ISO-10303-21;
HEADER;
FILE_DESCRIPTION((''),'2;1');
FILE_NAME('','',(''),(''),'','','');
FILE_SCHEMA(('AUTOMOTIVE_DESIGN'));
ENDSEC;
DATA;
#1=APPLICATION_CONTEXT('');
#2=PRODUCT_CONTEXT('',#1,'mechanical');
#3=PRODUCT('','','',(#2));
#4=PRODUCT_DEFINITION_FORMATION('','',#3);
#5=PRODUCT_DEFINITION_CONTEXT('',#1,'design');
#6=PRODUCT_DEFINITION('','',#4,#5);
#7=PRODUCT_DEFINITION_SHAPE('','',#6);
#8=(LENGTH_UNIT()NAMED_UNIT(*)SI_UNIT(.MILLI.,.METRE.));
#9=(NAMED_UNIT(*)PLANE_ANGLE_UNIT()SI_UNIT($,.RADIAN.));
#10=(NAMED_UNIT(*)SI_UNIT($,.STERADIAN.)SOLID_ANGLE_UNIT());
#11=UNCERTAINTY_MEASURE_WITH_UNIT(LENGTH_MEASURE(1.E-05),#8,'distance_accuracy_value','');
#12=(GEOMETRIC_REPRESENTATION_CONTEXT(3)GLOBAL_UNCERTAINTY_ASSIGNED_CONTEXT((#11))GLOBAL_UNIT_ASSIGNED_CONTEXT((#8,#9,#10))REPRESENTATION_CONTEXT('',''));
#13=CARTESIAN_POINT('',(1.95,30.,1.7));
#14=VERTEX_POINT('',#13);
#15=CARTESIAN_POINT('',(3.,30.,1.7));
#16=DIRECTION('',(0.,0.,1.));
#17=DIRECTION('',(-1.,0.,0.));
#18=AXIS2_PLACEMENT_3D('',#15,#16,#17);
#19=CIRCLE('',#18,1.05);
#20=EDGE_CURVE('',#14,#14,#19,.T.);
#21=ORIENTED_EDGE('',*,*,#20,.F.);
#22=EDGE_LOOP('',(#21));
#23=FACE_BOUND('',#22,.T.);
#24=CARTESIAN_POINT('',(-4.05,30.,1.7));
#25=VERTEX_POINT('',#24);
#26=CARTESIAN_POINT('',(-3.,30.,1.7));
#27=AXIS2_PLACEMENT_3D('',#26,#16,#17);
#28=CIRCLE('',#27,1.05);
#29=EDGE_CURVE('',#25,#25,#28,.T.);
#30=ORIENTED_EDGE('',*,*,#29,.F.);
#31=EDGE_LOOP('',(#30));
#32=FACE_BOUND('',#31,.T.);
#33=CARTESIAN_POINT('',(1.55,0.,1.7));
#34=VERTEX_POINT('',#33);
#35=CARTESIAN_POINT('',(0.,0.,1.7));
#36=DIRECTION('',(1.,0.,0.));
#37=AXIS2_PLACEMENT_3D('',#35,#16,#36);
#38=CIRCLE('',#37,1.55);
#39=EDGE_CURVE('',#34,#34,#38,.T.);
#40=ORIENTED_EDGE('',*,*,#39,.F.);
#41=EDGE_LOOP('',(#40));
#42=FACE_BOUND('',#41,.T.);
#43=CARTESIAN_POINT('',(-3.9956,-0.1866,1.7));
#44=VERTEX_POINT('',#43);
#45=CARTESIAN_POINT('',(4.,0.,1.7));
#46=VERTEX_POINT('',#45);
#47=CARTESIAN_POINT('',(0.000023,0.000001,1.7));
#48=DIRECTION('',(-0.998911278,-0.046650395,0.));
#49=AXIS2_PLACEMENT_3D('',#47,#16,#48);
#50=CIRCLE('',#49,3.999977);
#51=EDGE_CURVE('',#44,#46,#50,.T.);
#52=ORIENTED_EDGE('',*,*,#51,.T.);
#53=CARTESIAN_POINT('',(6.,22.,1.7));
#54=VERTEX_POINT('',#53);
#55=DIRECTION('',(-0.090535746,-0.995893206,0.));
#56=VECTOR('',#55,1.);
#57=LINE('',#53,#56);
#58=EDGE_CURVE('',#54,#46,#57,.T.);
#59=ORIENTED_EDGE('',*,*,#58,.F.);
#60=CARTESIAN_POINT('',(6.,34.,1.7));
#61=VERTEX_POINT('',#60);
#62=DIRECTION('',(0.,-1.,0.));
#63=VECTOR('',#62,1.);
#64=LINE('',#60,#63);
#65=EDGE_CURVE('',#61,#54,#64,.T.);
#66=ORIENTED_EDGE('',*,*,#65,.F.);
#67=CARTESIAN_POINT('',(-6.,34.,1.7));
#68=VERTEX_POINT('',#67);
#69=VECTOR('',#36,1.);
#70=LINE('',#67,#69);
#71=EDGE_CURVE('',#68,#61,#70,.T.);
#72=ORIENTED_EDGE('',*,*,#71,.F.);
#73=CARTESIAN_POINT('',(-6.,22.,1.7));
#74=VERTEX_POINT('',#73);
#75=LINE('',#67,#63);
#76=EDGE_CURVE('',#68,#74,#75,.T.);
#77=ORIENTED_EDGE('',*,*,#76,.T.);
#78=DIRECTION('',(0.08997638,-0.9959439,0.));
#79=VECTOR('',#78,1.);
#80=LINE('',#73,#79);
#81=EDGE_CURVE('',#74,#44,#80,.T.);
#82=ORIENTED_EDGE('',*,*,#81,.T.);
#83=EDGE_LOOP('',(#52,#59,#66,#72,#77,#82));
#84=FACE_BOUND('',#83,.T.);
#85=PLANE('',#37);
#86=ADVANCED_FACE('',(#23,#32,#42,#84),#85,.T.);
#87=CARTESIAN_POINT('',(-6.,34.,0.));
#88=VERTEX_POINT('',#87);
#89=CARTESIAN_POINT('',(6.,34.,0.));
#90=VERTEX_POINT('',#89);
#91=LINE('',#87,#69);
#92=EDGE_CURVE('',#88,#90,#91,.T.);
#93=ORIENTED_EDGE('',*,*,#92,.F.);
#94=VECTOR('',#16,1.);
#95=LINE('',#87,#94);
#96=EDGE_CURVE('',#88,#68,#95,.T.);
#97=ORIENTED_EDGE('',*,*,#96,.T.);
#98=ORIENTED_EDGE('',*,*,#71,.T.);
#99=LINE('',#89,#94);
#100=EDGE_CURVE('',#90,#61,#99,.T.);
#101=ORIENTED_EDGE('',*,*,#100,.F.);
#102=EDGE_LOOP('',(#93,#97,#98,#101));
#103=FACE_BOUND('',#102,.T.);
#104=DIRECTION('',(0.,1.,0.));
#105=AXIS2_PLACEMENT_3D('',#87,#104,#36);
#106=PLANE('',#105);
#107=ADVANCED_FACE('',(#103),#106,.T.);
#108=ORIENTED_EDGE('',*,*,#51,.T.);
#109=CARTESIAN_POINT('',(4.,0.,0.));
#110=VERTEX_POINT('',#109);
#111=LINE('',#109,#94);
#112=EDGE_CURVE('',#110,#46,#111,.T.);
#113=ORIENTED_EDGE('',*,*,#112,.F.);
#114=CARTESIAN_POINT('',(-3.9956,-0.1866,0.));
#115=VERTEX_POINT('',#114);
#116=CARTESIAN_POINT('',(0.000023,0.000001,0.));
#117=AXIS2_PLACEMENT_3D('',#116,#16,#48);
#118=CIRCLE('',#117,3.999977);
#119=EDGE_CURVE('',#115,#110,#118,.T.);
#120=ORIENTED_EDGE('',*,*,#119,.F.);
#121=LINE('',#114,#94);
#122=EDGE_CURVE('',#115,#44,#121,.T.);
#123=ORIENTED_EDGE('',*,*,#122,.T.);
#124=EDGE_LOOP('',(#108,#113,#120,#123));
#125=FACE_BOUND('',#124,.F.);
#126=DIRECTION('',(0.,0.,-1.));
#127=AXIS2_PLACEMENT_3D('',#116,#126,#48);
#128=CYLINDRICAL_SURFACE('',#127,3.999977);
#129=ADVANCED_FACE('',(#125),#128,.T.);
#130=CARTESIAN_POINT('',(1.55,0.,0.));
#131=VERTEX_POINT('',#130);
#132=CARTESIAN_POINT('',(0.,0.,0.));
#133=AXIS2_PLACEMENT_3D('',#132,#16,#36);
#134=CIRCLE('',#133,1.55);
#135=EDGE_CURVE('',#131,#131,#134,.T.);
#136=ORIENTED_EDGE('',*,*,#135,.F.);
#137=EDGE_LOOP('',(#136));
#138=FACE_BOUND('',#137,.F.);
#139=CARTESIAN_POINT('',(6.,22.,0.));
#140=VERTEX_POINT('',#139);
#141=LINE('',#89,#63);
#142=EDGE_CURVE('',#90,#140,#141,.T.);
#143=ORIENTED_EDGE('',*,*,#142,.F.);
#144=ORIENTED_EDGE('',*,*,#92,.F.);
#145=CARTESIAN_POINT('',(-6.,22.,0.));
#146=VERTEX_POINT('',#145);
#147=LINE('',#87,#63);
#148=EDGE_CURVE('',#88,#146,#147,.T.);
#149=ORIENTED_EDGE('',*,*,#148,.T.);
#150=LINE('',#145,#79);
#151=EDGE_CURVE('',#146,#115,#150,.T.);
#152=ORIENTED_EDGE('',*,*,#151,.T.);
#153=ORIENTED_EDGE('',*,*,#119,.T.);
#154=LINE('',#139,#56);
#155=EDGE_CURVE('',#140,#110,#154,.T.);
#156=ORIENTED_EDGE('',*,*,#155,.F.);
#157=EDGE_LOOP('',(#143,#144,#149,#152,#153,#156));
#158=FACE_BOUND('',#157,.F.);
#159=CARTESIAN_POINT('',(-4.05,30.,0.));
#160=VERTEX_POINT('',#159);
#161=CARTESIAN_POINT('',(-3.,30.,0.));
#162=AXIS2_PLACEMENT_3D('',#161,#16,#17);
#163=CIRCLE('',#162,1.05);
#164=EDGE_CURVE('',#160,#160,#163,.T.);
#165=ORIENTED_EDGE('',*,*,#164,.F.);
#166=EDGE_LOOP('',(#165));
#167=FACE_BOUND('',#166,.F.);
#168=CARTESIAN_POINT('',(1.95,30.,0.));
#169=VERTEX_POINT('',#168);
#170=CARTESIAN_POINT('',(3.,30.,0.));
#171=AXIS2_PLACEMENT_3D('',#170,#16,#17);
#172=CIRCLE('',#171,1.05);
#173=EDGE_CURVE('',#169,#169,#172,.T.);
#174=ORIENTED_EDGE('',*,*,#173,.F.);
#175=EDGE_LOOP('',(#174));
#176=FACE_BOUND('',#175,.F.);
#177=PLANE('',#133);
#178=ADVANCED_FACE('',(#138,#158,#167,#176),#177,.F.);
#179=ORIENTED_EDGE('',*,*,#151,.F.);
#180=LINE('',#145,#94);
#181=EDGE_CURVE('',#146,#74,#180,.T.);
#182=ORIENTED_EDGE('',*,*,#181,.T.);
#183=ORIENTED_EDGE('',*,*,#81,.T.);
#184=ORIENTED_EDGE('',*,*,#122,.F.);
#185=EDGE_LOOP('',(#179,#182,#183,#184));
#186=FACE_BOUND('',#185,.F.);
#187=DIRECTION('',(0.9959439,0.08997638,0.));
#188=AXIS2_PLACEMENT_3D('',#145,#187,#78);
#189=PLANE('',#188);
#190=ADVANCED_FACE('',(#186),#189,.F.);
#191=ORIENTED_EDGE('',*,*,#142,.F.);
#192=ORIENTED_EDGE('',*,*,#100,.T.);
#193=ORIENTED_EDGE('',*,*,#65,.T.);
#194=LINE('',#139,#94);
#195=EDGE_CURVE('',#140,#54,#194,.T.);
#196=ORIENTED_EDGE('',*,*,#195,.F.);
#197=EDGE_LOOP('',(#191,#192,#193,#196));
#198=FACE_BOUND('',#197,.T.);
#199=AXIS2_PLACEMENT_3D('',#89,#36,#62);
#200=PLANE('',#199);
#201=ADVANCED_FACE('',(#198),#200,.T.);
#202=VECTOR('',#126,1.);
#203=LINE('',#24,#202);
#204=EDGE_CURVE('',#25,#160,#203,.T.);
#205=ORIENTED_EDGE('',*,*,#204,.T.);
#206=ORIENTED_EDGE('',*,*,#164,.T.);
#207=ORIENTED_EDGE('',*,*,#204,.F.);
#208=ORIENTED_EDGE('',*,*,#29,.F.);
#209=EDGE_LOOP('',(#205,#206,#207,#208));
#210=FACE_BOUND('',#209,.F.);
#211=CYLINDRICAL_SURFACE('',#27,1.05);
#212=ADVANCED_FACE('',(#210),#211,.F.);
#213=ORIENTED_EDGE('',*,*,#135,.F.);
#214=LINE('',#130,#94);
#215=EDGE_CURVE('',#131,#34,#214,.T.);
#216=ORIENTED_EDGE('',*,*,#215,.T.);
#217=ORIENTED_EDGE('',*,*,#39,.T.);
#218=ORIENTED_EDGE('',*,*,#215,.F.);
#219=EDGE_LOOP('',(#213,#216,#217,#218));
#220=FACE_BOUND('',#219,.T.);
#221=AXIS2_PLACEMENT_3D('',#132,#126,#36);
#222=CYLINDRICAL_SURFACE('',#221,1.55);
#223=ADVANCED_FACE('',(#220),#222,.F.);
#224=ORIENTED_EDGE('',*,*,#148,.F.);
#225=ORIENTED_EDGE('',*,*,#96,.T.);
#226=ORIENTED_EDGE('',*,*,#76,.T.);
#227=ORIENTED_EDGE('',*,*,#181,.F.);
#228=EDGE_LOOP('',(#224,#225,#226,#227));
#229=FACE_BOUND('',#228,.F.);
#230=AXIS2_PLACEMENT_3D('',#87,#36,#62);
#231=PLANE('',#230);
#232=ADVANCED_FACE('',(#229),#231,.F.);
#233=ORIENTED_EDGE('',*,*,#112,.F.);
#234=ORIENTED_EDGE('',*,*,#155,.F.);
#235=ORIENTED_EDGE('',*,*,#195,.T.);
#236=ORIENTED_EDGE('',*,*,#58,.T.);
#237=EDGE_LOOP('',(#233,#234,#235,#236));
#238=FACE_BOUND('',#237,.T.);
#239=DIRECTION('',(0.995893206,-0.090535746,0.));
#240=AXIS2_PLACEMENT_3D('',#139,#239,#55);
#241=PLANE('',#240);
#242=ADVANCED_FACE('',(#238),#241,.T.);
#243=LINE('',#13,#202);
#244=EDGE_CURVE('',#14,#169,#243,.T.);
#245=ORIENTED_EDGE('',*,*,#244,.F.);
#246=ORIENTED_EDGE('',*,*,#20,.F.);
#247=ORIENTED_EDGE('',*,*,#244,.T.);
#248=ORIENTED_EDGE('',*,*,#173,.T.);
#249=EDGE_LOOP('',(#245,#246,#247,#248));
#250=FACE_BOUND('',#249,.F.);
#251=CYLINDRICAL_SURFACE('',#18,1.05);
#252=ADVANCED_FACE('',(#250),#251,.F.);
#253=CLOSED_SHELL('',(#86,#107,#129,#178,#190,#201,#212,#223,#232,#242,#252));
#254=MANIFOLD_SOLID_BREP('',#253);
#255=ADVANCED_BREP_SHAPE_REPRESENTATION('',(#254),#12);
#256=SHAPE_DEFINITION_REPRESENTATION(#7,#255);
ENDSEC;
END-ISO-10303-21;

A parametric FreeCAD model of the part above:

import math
import FreeCAD as App
import Part
import Sketcher

doc = App.newDocument("Part")
body = doc.addObject("PartDesign::Body", "Body")

# Sketch on XY plane
sketch1 = doc.addObject("Sketcher::SketchObject", "Sketch")
body.addObject(sketch1)
sketch1.AttachmentSupport = (doc.XY_Plane, [""])
sketch1.MapMode = "FlatFace"
sketch1.addGeometry([
    Part.LineSegment(App.Vector(6, 34, 0), App.Vector(-6, 34, 0)),  # 0
    Part.LineSegment(App.Vector(-6, 34, 0), App.Vector(-6, 22, 0)),  # 1
    Part.LineSegment(App.Vector(-6, 22, 0), App.Vector(-4, -0.2, 0)),  # 2
    Part.ArcOfCircle(Part.Circle(App.Vector(0, 0, 0), App.Vector(0, 0, 1), 4), math.radians(-177), math.radians(0)),  # 3
    Part.LineSegment(App.Vector(4, 0, 0), App.Vector(6, 22, 0)),  # 4
    Part.LineSegment(App.Vector(6, 22, 0), App.Vector(6, 34, 0)),  # 5
    Part.Circle(App.Vector(0, 0, 0), App.Vector(0, 0, 1), 1.6),  # 6
], False)
sketch1.addConstraint([
    Sketcher.Constraint("Coincident", 0, 2, 1, 1),
    Sketcher.Constraint("Coincident", 1, 2, 2, 1),
    Sketcher.Constraint("Coincident", 2, 2, 3, 1),
    Sketcher.Constraint("Coincident", 3, 2, 4, 1),
    Sketcher.Constraint("Coincident", 4, 2, 5, 1),
    Sketcher.Constraint("Coincident", 5, 2, 0, 1),
    Sketcher.Constraint("Horizontal", 0),
    Sketcher.Constraint("Vertical", 1),
    Sketcher.Constraint("Vertical", 5),
    Sketcher.Constraint("Coincident", 3, 3, -1, 1),
    Sketcher.Constraint("Coincident", 6, 3, -1, 1),
    Sketcher.Constraint("Symmetric", 1, 2, 4, 2, -2),
    Sketcher.Constraint("PointOnObject", 3, 2, -1),
    Sketcher.Constraint("Equal", 0, 1),
    Sketcher.Constraint("Radius", 3, 4.0),
    Sketcher.Constraint("Diameter", 6, 3.1),
    Sketcher.Constraint("DistanceX", 0, 2, 0, 1, 12.0),
    Sketcher.Constraint("DistanceY", -1, 1, 0, 2, 34.0),
    Sketcher.Constraint("Distance", 2, 22.277),
])
pad1 = doc.addObject("PartDesign::Pad", "Pad")
body.addObject(pad1)
pad1.Profile = sketch1
pad1.Length = 1.7

# Sketch on XY plane
sketch2 = doc.addObject("Sketcher::SketchObject", "Sketch001")
body.addObject(sketch2)
sketch2.AttachmentSupport = (doc.XY_Plane, [""])
sketch2.MapMode = "FlatFace"
sketch2.AttachmentOffset = App.Placement(App.Vector(0, 0, 1.7), App.Rotation())
sketch2.addGeometry([
    Part.Circle(App.Vector(-3, 30, 0), App.Vector(0, 0, 1), 1.1),
    Part.Circle(App.Vector(3, 30, 0), App.Vector(0, 0, 1), 1.1),
], False)
sketch2.addConstraint([
    Sketcher.Constraint("Equal", 0, 1),
    Sketcher.Constraint("Symmetric", 0, 3, 1, 3, -2),
    Sketcher.Constraint("Diameter", 0, 2.1),
    Sketcher.Constraint("DistanceX", 0, 3, -1, 1, 3.0),
    Sketcher.Constraint("DistanceY", -1, 1, 0, 3, 30.0),
])
pocket1 = doc.addObject("PartDesign::Pocket", "Pocket")
body.addObject(pocket1)
pocket1.Profile = sketch2
pocket1.Length = 1.7

doc.recompute()
